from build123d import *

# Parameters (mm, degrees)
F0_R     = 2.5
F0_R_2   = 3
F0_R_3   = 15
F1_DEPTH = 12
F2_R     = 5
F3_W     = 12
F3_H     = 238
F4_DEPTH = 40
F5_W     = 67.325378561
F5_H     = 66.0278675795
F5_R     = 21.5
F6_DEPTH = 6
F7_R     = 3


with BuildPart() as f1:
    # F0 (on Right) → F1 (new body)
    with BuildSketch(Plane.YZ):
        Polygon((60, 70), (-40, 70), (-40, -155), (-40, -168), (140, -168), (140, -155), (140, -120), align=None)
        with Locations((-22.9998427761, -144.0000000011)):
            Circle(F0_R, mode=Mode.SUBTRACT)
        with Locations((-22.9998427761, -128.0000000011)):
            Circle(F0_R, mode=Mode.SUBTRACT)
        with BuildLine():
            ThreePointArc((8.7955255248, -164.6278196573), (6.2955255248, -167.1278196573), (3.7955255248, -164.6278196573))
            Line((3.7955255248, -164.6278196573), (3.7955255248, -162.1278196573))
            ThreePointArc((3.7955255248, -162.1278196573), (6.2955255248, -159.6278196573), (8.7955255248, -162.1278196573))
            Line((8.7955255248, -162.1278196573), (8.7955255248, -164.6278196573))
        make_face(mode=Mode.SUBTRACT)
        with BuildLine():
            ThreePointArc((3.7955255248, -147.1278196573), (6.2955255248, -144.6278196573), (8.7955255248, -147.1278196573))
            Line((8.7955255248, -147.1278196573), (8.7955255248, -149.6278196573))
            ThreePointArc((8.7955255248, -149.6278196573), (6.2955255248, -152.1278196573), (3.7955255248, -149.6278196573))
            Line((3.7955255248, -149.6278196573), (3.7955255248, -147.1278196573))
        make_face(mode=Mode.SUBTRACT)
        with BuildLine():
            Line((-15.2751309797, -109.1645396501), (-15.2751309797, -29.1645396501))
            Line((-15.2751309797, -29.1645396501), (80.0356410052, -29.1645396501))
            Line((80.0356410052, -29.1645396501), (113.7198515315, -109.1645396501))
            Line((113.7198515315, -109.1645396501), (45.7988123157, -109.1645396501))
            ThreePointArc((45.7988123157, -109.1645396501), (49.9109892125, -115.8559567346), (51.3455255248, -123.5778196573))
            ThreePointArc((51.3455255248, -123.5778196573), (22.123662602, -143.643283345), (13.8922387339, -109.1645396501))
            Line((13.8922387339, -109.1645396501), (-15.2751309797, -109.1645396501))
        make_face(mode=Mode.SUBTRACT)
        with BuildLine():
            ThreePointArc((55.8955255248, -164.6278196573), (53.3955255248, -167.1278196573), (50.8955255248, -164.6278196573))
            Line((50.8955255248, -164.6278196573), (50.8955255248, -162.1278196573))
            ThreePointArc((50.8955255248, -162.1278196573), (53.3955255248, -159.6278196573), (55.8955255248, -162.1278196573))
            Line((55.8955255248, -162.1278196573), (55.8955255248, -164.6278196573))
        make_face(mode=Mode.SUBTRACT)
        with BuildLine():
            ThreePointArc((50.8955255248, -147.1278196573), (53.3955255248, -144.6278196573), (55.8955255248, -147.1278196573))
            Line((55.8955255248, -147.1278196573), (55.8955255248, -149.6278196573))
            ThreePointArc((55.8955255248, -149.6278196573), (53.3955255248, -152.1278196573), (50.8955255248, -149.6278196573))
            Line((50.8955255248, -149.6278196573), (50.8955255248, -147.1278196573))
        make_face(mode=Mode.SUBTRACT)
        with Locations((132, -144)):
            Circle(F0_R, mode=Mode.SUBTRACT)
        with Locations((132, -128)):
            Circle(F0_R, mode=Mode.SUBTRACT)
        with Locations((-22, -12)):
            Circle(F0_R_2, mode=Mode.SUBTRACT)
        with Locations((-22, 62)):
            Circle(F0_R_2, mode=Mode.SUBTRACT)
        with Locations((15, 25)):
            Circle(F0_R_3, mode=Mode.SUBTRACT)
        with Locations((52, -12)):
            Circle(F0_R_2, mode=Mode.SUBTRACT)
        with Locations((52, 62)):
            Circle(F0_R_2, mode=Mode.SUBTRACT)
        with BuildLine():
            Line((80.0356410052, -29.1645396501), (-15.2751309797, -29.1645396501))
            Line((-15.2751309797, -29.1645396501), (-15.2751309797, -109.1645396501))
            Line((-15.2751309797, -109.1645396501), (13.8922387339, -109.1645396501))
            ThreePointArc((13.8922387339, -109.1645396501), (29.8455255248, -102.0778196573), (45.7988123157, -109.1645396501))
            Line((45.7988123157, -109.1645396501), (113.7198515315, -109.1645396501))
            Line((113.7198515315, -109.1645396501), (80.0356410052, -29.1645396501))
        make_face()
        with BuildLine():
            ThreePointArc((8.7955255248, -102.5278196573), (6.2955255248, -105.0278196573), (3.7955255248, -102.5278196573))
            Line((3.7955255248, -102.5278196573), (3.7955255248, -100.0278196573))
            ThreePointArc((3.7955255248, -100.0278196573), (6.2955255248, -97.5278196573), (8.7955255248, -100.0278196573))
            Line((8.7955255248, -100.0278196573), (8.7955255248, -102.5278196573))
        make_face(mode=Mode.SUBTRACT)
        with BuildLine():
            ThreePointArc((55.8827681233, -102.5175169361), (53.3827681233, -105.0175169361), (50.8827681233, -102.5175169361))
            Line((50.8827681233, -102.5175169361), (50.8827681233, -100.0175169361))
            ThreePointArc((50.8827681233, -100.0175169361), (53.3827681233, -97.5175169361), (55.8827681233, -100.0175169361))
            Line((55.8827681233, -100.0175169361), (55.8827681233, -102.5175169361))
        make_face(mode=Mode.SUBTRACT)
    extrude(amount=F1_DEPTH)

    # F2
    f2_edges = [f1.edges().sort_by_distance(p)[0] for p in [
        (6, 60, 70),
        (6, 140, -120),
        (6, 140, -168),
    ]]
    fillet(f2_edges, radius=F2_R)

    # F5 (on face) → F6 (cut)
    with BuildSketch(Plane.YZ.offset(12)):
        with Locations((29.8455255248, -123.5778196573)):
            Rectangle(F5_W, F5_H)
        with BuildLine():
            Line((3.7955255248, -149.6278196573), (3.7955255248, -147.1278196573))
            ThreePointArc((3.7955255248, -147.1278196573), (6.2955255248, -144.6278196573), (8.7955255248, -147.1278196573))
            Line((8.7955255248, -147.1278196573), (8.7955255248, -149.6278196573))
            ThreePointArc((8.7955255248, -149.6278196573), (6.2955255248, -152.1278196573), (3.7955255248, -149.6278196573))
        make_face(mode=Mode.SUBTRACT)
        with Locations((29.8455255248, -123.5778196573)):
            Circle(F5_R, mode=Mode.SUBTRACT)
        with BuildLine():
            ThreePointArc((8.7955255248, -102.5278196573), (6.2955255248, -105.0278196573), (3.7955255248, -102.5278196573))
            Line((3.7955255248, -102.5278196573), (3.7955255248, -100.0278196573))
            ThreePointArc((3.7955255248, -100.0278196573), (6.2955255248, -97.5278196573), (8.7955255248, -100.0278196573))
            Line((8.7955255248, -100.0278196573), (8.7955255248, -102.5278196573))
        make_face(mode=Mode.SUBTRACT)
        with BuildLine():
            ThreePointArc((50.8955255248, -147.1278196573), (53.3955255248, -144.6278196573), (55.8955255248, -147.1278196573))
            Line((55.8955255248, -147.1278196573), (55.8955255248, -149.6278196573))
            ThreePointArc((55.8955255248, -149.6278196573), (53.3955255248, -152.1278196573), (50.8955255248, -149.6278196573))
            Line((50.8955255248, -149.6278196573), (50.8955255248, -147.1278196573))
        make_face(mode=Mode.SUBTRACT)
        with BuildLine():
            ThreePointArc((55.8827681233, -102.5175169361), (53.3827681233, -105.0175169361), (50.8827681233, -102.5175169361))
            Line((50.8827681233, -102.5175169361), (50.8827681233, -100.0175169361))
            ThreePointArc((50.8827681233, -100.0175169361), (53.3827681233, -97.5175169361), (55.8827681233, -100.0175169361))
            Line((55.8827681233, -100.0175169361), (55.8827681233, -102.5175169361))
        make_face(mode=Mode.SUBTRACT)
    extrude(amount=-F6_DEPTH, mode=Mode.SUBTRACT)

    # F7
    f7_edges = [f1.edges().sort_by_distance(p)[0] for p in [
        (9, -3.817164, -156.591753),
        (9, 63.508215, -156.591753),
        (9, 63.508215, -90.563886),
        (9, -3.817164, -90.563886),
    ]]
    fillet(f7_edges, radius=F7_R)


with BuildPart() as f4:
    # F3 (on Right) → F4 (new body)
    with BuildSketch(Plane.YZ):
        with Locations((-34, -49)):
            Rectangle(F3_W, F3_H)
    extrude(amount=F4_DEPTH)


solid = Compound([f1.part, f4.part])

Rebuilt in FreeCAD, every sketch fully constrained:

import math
import FreeCAD as App
import Part
import Sketcher
from FreeCAD import Vector


def edges_at(feature, points):
    """Names of the edges that pass closest to the given points."""
    edges = feature.Shape.Edges
    near = lambda p: min(range(len(edges)), key=lambda i: edges[i].distToShape(Part.Vertex(*p))[0])
    return sorted({f"Edge{near(p) + 1}" for p in points})


def add_polygon(sketch, points):
    """Adds a closed chain of lines whose ends are joined by coincident constraints."""
    first, n = sketch.GeometryCount, len(points)
    for a, b in zip(points, points[1:] + points[:1]):
        sketch.addGeometry(Part.LineSegment(App.Vector(*a, 0), App.Vector(*b, 0)), False)
    for i in range(n):
        sketch.addConstraint(Sketcher.Constraint("Coincident", first + i, 2, first + (i + 1) % n, 1))

doc = App.newDocument("Part")
body = doc.addObject("PartDesign::Body", "Body")

sketch1 = body.newObject("Sketcher::SketchObject", "Sketch")
sketch1.AttachmentSupport = (doc.getObject("YZ_Plane"), [""])
sketch1.MapMode = "FlatFace"
add_polygon(sketch1, [(60, 70), (-40, 70), (-40, -168), (140, -168), (140, -120)])
sketch1.addGeometry(Part.Circle(Vector(-23, -144, 0), Vector(0, 0, 1), 2.5), False)
sketch1.addGeometry(Part.LineSegment(Vector(8.8, -162.1, 0), Vector(8.8, -164.6, 0)), False)
sketch1.addGeometry(Part.ArcOfCircle(Part.Circle(Vector(6.3, -164.6, 0), Vector(0, 0, 1), 2.5), math.radians(180), math.radians(360)), False)
sketch1.addGeometry(Part.LineSegment(Vector(3.8, -164.6, 0), Vector(3.8, -162.1, 0)), False)
sketch1.addGeometry(Part.ArcOfCircle(Part.Circle(Vector(6.3, -162.1, 0), Vector(0, 0, 1), 2.5), math.radians(0), math.radians(180)), False)
sketch1.addGeometry(Part.LineSegment(Vector(3.8, -149.6, 0), Vector(3.8, -147.1, 0)), False)
sketch1.addGeometry(Part.ArcOfCircle(Part.Circle(Vector(6.3, -147.1, 0), Vector(0, 0, 1), 2.5), math.radians(0), math.radians(180)), False)
sketch1.addGeometry(Part.LineSegment(Vector(8.8, -147.1, 0), Vector(8.8, -149.6, 0)), False)
sketch1.addGeometry(Part.ArcOfCircle(Part.Circle(Vector(6.3, -149.6, 0), Vector(0, 0, 1), 2.5), math.radians(180), math.radians(360)), False)
sketch1.addGeometry(Part.Circle(Vector(-23, -128, 0), Vector(0, 0, 1), 2.5), False)
sketch1.addGeometry(Part.LineSegment(Vector(55.9, -162.1, 0), Vector(55.9, -164.6, 0)), False)
sketch1.addGeometry(Part.ArcOfCircle(Part.Circle(Vector(53.4, -164.6, 0), Vector(0, 0, 1), 2.5), math.radians(180), math.radians(360)), False)
sketch1.addGeometry(Part.LineSegment(Vector(50.9, -164.6, 0), Vector(50.9, -162.1, 0)), False)
sketch1.addGeometry(Part.ArcOfCircle(Part.Circle(Vector(53.4, -162.1, 0), Vector(0, 0, 1), 2.5), math.radians(0), math.radians(180)), False)
sketch1.addGeometry(Part.LineSegment(Vector(50.9, -149.6, 0), Vector(50.9, -147.1, 0)), False)
sketch1.addGeometry(Part.ArcOfCircle(Part.Circle(Vector(53.4, -147.1, 0), Vector(0, 0, 1), 2.5), math.radians(0), math.radians(180)), False)
sketch1.addGeometry(Part.LineSegment(Vector(55.9, -147.1, 0), Vector(55.9, -149.6, 0)), False)
sketch1.addGeometry(Part.ArcOfCircle(Part.Circle(Vector(53.4, -149.6, 0), Vector(0, 0, 1), 2.5), math.radians(180), math.radians(360)), False)
sketch1.addGeometry(Part.ArcOfCircle(Part.Circle(Vector(29.8, -123.6, 0), Vector(0, 0, 1), 21.5), math.radians(138), math.radians(402)), False)
sketch1.addGeometry(Part.ArcOfCircle(Part.Circle(Vector(29.8, -123.6, 0), Vector(0, 0, 1), 21.5), math.radians(42), math.radians(138)), False)
sketch1.addGeometry(Part.LineSegment(Vector(8.8, -100, 0), Vector(8.8, -102.5, 0)), False)
sketch1.addGeometry(Part.ArcOfCircle(Part.Circle(Vector(6.3, -102.5, 0), Vector(0, 0, 1), 2.5), math.radians(180), math.radians(360)), False)
sketch1.addGeometry(Part.LineSegment(Vector(3.8, -102.5, 0), Vector(3.8, -100, 0)), False)
sketch1.addGeometry(Part.ArcOfCircle(Part.Circle(Vector(6.3, -100, 0), Vector(0, 0, 1), 2.5), math.radians(0), math.radians(180)), False)
sketch1.addGeometry(Part.LineSegment(Vector(55.9, -100, 0), Vector(55.9, -102.5, 0)), False)
sketch1.addGeometry(Part.ArcOfCircle(Part.Circle(Vector(53.4, -102.5, 0), Vector(0, 0, 1), 2.5), math.radians(180), math.radians(360)), False)
sketch1.addGeometry(Part.LineSegment(Vector(50.9, -102.5, 0), Vector(50.9, -100, 0)), False)
sketch1.addGeometry(Part.ArcOfCircle(Part.Circle(Vector(53.4, -100, 0), Vector(0, 0, 1), 2.5), math.radians(0), math.radians(180)), False)
sketch1.addGeometry(Part.Circle(Vector(132, -144, 0), Vector(0, 0, 1), 2.5), False)
sketch1.addGeometry(Part.Circle(Vector(132, -128, 0), Vector(0, 0, 1), 2.5), False)
sketch1.addGeometry(Part.Circle(Vector(-22, -12, 0), Vector(0, 0, 1), 3), False)
sketch1.addGeometry(Part.Circle(Vector(52, -12, 0), Vector(0, 0, 1), 3), False)
sketch1.addGeometry(Part.Circle(Vector(-22, 62, 0), Vector(0, 0, 1), 3), False)
sketch1.addGeometry(Part.Circle(Vector(15, 25, 0), Vector(0, 0, 1), 15), False)
sketch1.addGeometry(Part.Circle(Vector(52, 62, 0), Vector(0, 0, 1), 3), False)
sketch1.addConstraint([
    Sketcher.Constraint("Tangent", 6, 2, 7, 2),
    Sketcher.Constraint("Tangent", 7, 1, 8, 1),
    Sketcher.Constraint("Tangent", 8, 2, 9, 2),
    Sketcher.Constraint("Tangent", 9, 1, 6, 1),
    Sketcher.Constraint("Tangent", 10, 2, 11, 2),
    Sketcher.Constraint("Tangent", 11, 1, 12, 1),
    Sketcher.Constraint("Tangent", 12, 2, 13, 2),
    Sketcher.Constraint("Tangent", 13, 1, 10, 1),
    Sketcher.Constraint("Tangent", 15, 2, 16, 2),
    Sketcher.Constraint("Tangent", 16, 1, 17, 1),
    Sketcher.Constraint("Tangent", 17, 2, 18, 2),
    Sketcher.Constraint("Tangent", 18, 1, 15, 1),
    Sketcher.Constraint("Tangent", 19, 2, 20, 2),
    Sketcher.Constraint("Tangent", 20, 1, 21, 1),
    Sketcher.Constraint("Tangent", 21, 2, 22, 2),
    Sketcher.Constraint("Tangent", 22, 1, 19, 1),
    Sketcher.Constraint("Tangent", 23, 1, 24, 2),
    Sketcher.Constraint("Coincident", 24, 1, 23, 2),
    Sketcher.Constraint("Tangent", 25, 2, 26, 2),
    Sketcher.Constraint("Tangent", 26, 1, 27, 1),
    Sketcher.Constraint("Tangent", 27, 2, 28, 2),
    Sketcher.Constraint("Tangent", 28, 1, 25, 1),
    Sketcher.Constraint("Tangent", 29, 2, 30, 2),
    Sketcher.Constraint("Tangent", 30, 1, 31, 1),
    Sketcher.Constraint("Tangent", 31, 2, 32, 2),
    Sketcher.Constraint("Tangent", 32, 1, 29, 1),
    Sketcher.Constraint("Horizontal", 0),
    Sketcher.Constraint("Vertical", 1),
    Sketcher.Constraint("Horizontal", 2),
    Sketcher.Constraint("Vertical", 3),
    Sketcher.Constraint("Vertical", 6),
    Sketcher.Constraint("Vertical", 8),
    Sketcher.Constraint("Vertical", 10),
    Sketcher.Constraint("Vertical", 12),
    Sketcher.Constraint("Vertical", 15),
    Sketcher.Constraint("Vertical", 17),
    Sketcher.Constraint("Vertical", 19),
    Sketcher.Constraint("Vertical", 21),
    Sketcher.Constraint("Vertical", 25),
    Sketcher.Constraint("Vertical", 27),
    Sketcher.Constraint("Vertical", 29),
    Sketcher.Constraint("Vertical", 31),
    Sketcher.Constraint("Equal", 5, 7),
    Sketcher.Constraint("Equal", 9, 11),
    Sketcher.Constraint("Equal", 13, 14),
    Sketcher.Constraint("Equal", 14, 16),
    Sketcher.Constraint("Equal", 18, 20),
    Sketcher.Constraint("Equal", 22, 26),
    Sketcher.Constraint("Equal", 28, 30),
    Sketcher.Constraint("Equal", 32, 33),
    Sketcher.Constraint("Equal", 33, 34),
    Sketcher.Constraint("Equal", 35, 36),
    Sketcher.Constraint("Equal", 36, 37),
    Sketcher.Constraint("Equal", 37, 39),
    Sketcher.Constraint("Horizontal", 7, 3, 16, 3),
    Sketcher.Constraint("Horizontal", 9, 3, 18, 3),
    Sketcher.Constraint("Horizontal", 11, 3, 20, 3),
    Sketcher.Constraint("Horizontal", 13, 3, 22, 3),
    Sketcher.Constraint("Horizontal", 5, 3, 33, 3),
    Sketcher.Constraint("Horizontal", 14, 3, 34, 3),
    Sketcher.Constraint("Horizontal", 35, 3, 36, 3),
    Sketcher.Constraint("Horizontal", 37, 3, 39, 3),
    Sketcher.Constraint("Horizontal", 23, 1, 24, 1),
    Sketcher.Constraint("Vertical", 9, 3, 11, 3),
    Sketcher.Constraint("Vertical", 5, 3, 14, 3),
    Sketcher.Constraint("Vertical", 18, 3, 20, 3),
    Sketcher.Constraint("Vertical", 13, 3, 26, 3),
    Sketcher.Constraint("Vertical", 33, 3, 34, 3),
    Sketcher.Constraint("Vertical", 35, 3, 37, 3),
    Sketcher.Constraint("Vertical", 36, 3, 39, 3),
    Sketcher.Constraint("Equal", 8, 10),
    Sketcher.Constraint("Equal", 21, 25),
    Sketcher.Constraint("Equal", 27, 29),
    Sketcher.Constraint("Diameter", 5, 5.0),
    Sketcher.Constraint("Diameter", 35, 6.0),
    Sketcher.Constraint("Diameter", 38, 30.0),
    Sketcher.Constraint("Radius", 23, 21.5),
    Sketcher.Constraint("DistanceX", 0, 2, 0, 1, 100.0),
    Sketcher.Constraint("DistanceX", 2, 1, 2, 2, 180.0),
    Sketcher.Constraint("DistanceY", 1, 2, 1, 1, 238.0),
    Sketcher.Constraint("DistanceY", 3, 1, 3, 2, 48.0),
    Sketcher.Constraint("DistanceY", 6, 2, 6, 1, 2.5),
    Sketcher.Constraint("DistanceY", 5, 3, -1, 1, 144.0),
    Sketcher.Constraint("DistanceY", 14, 3, -1, 1, 128.0),
    Sketcher.Constraint("DistanceX", -1, 1, 33, 3, 132.0),
    Sketcher.Constraint("DistanceX", 35, 3, -1, 1, 22.0),
    Sketcher.Constraint("DistanceY", 35, 3, -1, 1, 12.0),
    Sketcher.Constraint("DistanceX", -1, 1, 36, 3, 52.0),
    Sketcher.Constraint("DistanceY", -1, 1, 37, 3, 62.0),
    Sketcher.Constraint("DistanceX", -1, 1, 38, 3, 15.0),
    Sketcher.Constraint("DistanceY", -1, 1, 38, 3, 25.0),
    Sketcher.Constraint("DistanceX", 0, 2, -1, 1, 40.0),
    Sketcher.Constraint("DistanceY", -1, 1, 0, 2, 70.0),
    Sketcher.Constraint("DistanceY", 9, 3, 11, 3, 15.0),
    Sketcher.Constraint("DistanceX", 7, 3, 16, 3, 47.1),
    Sketcher.Constraint("DistanceY", 11, 3, 26, 3, 44.6),
    Sketcher.Constraint("DistanceX", 11, 3, 23, 3, 23.55),
    Sketcher.Constraint("DistanceY", 11, 3, 23, 3, 23.55),
    Sketcher.Constraint("DistanceY", 7, 3, -1, 1, 164.62782),
    Sketcher.Constraint("DistanceX", -1, 1, 30, 3, 53.382768),
    Sketcher.Constraint("DistanceX", -1, 1, 23, 1, 13.892239),
    Sketcher.Constraint("DistanceY", 23, 1, -1, 1, 109.16454),
    Sketcher.Constraint("DistanceX", 5, 3, 7, 3, 29.295368),
    Sketcher.Constraint("DistanceY", 30, 3, -1, 1, 102.517517),
])
pad1 = body.newObject("PartDesign::Pad", "Pad")
pad1.Profile = sketch1
pad1.Length = 12
doc.recompute()

fillet = body.newObject("PartDesign::Fillet", "Fillet")
fillet.Base = (pad1, edges_at(pad1, [(6, 60, 70), (6, 140, -120), (6, 140, -168)]))
fillet.Radius = 5

sketch2 = body.newObject("Sketcher::SketchObject", "Sketch001")
sketch2.AttachmentSupport = (doc.getObject("YZ_Plane"), [""])
sketch2.MapMode = "FlatFace"
sketch2.AttachmentOffset = App.Placement(Vector(0, 0, 12), App.Rotation())
add_polygon(sketch2, [(-3.8, -90.6), (-3.8, -156.6), (63.5, -156.6), (63.5, -90.6)])
sketch2.addGeometry(Part.ArcOfCircle(Part.Circle(Vector(6.3, -149.6, 0), Vector(0, 0, 1), 2.5), math.radians(180), math.radians(360)), False)
sketch2.addGeometry(Part.LineSegment(Vector(3.8, -149.6, 0), Vector(3.8, -147.1, 0)), False)
sketch2.addGeometry(Part.ArcOfCircle(Part.Circle(Vector(6.3, -147.1, 0), Vector(0, 0, 1), 2.5), math.radians(0), math.radians(180)), False)
sketch2.addGeometry(Part.LineSegment(Vector(8.8, -147.1, 0), Vector(8.8, -149.6, 0)), False)
sketch2.addGeometry(Part.LineSegment(Vector(50.9, -149.6, 0), Vector(50.9, -147.1, 0)), False)
sketch2.addGeometry(Part.ArcOfCircle(Part.Circle(Vector(53.4, -147.1, 0), Vector(0, 0, 1), 2.5), math.radians(0), math.radians(180)), False)
sketch2.addGeometry(Part.LineSegment(Vector(55.9, -147.1, 0), Vector(55.9, -149.6, 0)), False)
sketch2.addGeometry(Part.ArcOfCircle(Part.Circle(Vector(53.4, -149.6, 0), Vector(0, 0, 1), 2.5), math.radians(180), math.radians(360)), False)
sketch2.addGeometry(Part.LineSegment(Vector(8.8, -100, 0), Vector(8.8, -102.5, 0)), False)
sketch2.addGeometry(Part.ArcOfCircle(Part.Circle(Vector(6.3, -102.5, 0), Vector(0, 0, 1), 2.5), math.radians(180), math.radians(360)), False)
sketch2.addGeometry(Part.LineSegment(Vector(3.8, -102.5, 0), Vector(3.8, -100, 0)), False)
sketch2.addGeometry(Part.ArcOfCircle(Part.Circle(Vector(6.3, -100, 0), Vector(0, 0, 1), 2.5), math.radians(0), math.radians(180)), False)
sketch2.addGeometry(Part.Circle(Vector(29.8, -123.6, 0), Vector(0, 0, 1), 21.5), False)
sketch2.addGeometry(Part.LineSegment(Vector(55.9, -100, 0), Vector(55.9, -102.5, 0)), False)
sketch2.addGeometry(Part.ArcOfCircle(Part.Circle(Vector(53.4, -102.5, 0), Vector(0, 0, 1), 2.5), math.radians(180), math.radians(360)), False)
sketch2.addGeometry(Part.LineSegment(Vector(50.9, -102.5, 0), Vector(50.9, -100, 0)), False)
sketch2.addGeometry(Part.ArcOfCircle(Part.Circle(Vector(53.4, -100, 0), Vector(0, 0, 1), 2.5), math.radians(0), math.radians(180)), False)
sketch2.addConstraint([
    Sketcher.Constraint("Tangent", 4, 1, 5, 1),
    Sketcher.Constraint("Tangent", 5, 2, 6, 2),
    Sketcher.Constraint("Tangent", 6, 1, 7, 1),
    Sketcher.Constraint("Tangent", 7, 2, 4, 2),
    Sketcher.Constraint("Tangent", 8, 2, 9, 2),
    Sketcher.Constraint("Tangent", 9, 1, 10, 1),
    Sketcher.Constraint("Tangent", 10, 2, 11, 2),
    Sketcher.Constraint("Tangent", 11, 1, 8, 1),
    Sketcher.Constraint("Tangent", 12, 2, 13, 2),
    Sketcher.Constraint("Tangent", 13, 1, 14, 1),
    Sketcher.Constraint("Tangent", 14, 2, 15, 2),
    Sketcher.Constraint("Tangent", 15, 1, 12, 1),
    Sketcher.Constraint("Tangent", 17, 2, 18, 2),
    Sketcher.Constraint("Tangent", 18, 1, 19, 1),
    Sketcher.Constraint("Tangent", 19, 2, 20, 2),
    Sketcher.Constraint("Tangent", 20, 1, 17, 1),
    Sketcher.Constraint("Vertical", 0),
    Sketcher.Constraint("Horizontal", 1),
    Sketcher.Constraint("Vertical", 2),
    Sketcher.Constraint("Horizontal", 3),
    Sketcher.Constraint("Vertical", 5),
    Sketcher.Constraint("Vertical", 7),
    Sketcher.Constraint("Vertical", 8),
    Sketcher.Constraint("Vertical", 10),
    Sketcher.Constraint("Vertical", 12),
    Sketcher.Constraint("Vertical", 14),
    Sketcher.Constraint("Vertical", 17),
    Sketcher.Constraint("Vertical", 19),
    Sketcher.Constraint("Equal", 6, 9),
    Sketcher.Constraint("Equal", 11, 13),
    Sketcher.Constraint("Equal", 15, 18),
    Sketcher.Constraint("Horizontal", 6, 3, 9, 3),
    Sketcher.Constraint("Horizontal", 4, 3, 11, 3),
    Sketcher.Constraint("Vertical", 6, 3, 13, 3),
    Sketcher.Constraint("Equal", 10, 12),
    Sketcher.Constraint("Equal", 14, 17),
    Sketcher.Constraint("Diameter", 16, 43.0),
    Sketcher.Constraint("Radius", 4, 2.5),
    Sketcher.Constraint("DistanceY", 5, 1, 5, 2, 2.5),
    Sketcher.Constraint("DistanceX", 6, 3, 9, 3, 47.1),
    Sketcher.Constraint("DistanceY", 6, 3, 13, 3, 44.6),
    Sketcher.Constraint("DistanceX", 13, 3, 16, 3, 23.55),
    Sketcher.Constraint("DistanceY", 16, 3, 13, 3, 21.05),
    Sketcher.Constraint("DistanceX", 1, 1, 1, 2, 67.325379),
    Sketcher.Constraint("DistanceY", 0, 2, 0, 1, 66.027868),
    Sketcher.Constraint("DistanceY", 4, 3, -1, 1, 149.62782),
    Sketcher.Constraint("DistanceX", -1, 1, 18, 3, 53.382768),
    Sketcher.Constraint("DistanceX", 0, 2, 4, 3, 10.112689),
    Sketcher.Constraint("DistanceY", 20, 3, 2, 2, 9.453631),
    Sketcher.Constraint("DistanceX", 3, 2, 20, 3, 57.199932),
    Sketcher.Constraint("DistanceY", 18, 3, -1, 1, 102.517517),
])
pocket1 = body.newObject("PartDesign::Pocket", "Pocket")
pocket1.Profile = sketch2
pocket1.Length = 6
doc.recompute()

fillet2 = body.newObject("PartDesign::Fillet", "Fillet001")
fillet2.Base = (pocket1, edges_at(pocket1, [
    (9, -3.817, -156.592),
    (9, 63.508, -156.592),
    (9, 63.508, -90.564),
    (9, -3.817, -90.564),
]))
fillet2.Radius = 3
body2 = doc.addObject("PartDesign::Body", "Body001")

sketch3 = body2.newObject("Sketcher::SketchObject", "Sketch002")
sketch3.AttachmentSupport = (doc.getObject("YZ_Plane001"), [""])
sketch3.MapMode = "FlatFace"
add_polygon(sketch3, [(-40, 70), (-40, -168), (-28, -168), (-28, 70)])
sketch3.addConstraint([
    Sketcher.Constraint("Vertical", 0),
    Sketcher.Constraint("Horizontal", 1),
    Sketcher.Constraint("Vertical", 2),
    Sketcher.Constraint("Horizontal", 3),
    Sketcher.Constraint("DistanceX", 1, 1, 1, 2, 12.0),
    Sketcher.Constraint("DistanceY", 0, 2, 0, 1, 238.0),
    Sketcher.Constraint("DistanceX", 0, 2, -1, 1, 40.0),
    Sketcher.Constraint("DistanceY", 0, 2, -1, 1, 168.0),
])
pad2 = body2.newObject("PartDesign::Pad", "Pad001")
pad2.Profile = sketch3
pad2.Length = 40

doc.recompute()
